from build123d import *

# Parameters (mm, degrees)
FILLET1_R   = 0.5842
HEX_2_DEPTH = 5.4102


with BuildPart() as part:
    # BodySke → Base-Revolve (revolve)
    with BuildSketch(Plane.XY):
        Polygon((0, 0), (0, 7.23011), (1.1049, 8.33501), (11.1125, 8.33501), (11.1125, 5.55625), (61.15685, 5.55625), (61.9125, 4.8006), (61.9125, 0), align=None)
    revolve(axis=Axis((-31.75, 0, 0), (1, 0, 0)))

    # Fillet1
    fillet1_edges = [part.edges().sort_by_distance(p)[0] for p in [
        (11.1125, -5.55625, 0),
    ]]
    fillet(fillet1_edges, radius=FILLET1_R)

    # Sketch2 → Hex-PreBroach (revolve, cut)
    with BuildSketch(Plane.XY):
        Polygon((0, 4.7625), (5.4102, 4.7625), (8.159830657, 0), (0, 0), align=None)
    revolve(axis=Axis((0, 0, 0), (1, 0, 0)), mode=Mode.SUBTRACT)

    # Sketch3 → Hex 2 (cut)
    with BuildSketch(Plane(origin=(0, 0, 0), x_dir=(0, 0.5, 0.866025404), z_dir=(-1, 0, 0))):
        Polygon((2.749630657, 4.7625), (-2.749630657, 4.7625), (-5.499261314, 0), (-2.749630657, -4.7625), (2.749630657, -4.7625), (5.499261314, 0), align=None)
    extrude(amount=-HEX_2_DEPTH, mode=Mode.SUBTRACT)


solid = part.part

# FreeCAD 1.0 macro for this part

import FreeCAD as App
import Part
import Sketcher
Q = App.Units.Quantity


def edges_at(feature, points):
    """Names of the edges that pass closest to the given points."""
    edges = feature.Shape.Edges
    near = lambda p: min(range(len(edges)), key=lambda i: edges[i].distToShape(Part.Vertex(*p))[0])
    return sorted({f"Edge{near(p) + 1}" for p in points})

doc = App.newDocument("Part")
params = doc.addObject("Spreadsheet::Sheet", "Params")
for row, (alias, value) in enumerate([
    ("sketch1_width", "2.4375 in"),
    ("sketch1_width2", "0.394 in"),
    ("sketch1_height", "0.189 in"),
    ("revolution_angle", "360 deg"),
    ("fillet_radius", "0.023 in"),
    ("sketch2_width", "0.213 in"),
    ("sketch2_height", "0.1875 in"),
    ("groove_angle", "360 deg"),
    ("pocket1_length", "0.213 in"),
], start=1):
    params.set(f"A{row}", alias)
    params.set(f"B{row}", "=" + value)
    params.setAlias(f"B{row}", alias)

body = doc.addObject("PartDesign::Body", "Body")

sketch1 = body.newObject("Sketcher::SketchObject", "Sketch")
sketch1.AttachmentSupport = (doc.getObject("XY_Plane"), [""])
sketch1.MapMode = "FlatFace"
sketch1.addGeometry([
    Part.LineSegment(App.Vector(0, 7.2, 0), App.Vector(0, 0, 0)),
    Part.LineSegment(App.Vector(0, 0, 0), App.Vector(61.9, 0, 0)),
    Part.LineSegment(App.Vector(61.9, 0, 0), App.Vector(61.9, 4.8, 0)),
    Part.LineSegment(App.Vector(61.9, 4.8, 0), App.Vector(61.2, 5.6, 0)),
    Part.LineSegment(App.Vector(61.2, 5.6, 0), App.Vector(11.1, 5.6, 0)),
    Part.LineSegment(App.Vector(11.1, 5.6, 0), App.Vector(11.1, 8.3, 0)),
    Part.LineSegment(App.Vector(11.1, 8.3, 0), App.Vector(1.1, 8.3, 0)),
    Part.LineSegment(App.Vector(1.1, 8.3, 0), App.Vector(0, 7.2, 0)),
], False)
sketch1.addConstraint([
    Sketcher.Constraint("Coincident", 0, 2, 1, 1),
    Sketcher.Constraint("Coincident", 1, 2, 2, 1),
    Sketcher.Constraint("Coincident", 2, 2, 3, 1),
    Sketcher.Constraint("Coincident", 3, 2, 4, 1),
    Sketcher.Constraint("Coincident", 4, 2, 5, 1),
    Sketcher.Constraint("Coincident", 5, 2, 6, 1),
    Sketcher.Constraint("Coincident", 6, 2, 7, 1),
    Sketcher.Constraint("Coincident", 7, 2, 0, 1),
    Sketcher.Constraint("Vertical", 0),
    Sketcher.Constraint("Horizontal", 1),
    Sketcher.Constraint("Vertical", 2),
    Sketcher.Constraint("Horizontal", 4),
    Sketcher.Constraint("Vertical", 5),
    Sketcher.Constraint("Horizontal", 6),
    Sketcher.Constraint("Coincident", 0, 2, -1, 1),
    Sketcher.Constraint("Perpendicular", 3, 7),
    Sketcher.Constraint("Angle", 3, Q("135 deg")),
    Sketcher.Constraint("DistanceX", 4, 2, 2, 2, Q("2 in")),
    Sketcher.Constraint("DistanceX", 1, 1, 1, 2, Q("2.4375 in")),
    Sketcher.Constraint("DistanceX", 6, 2, 6, 1, Q("0.394 in")),
    Sketcher.Constraint("DistanceY", 2, 1, 2, 2, Q("0.189 in")),
    Sketcher.Constraint("DistanceY", 5, 1, 5, 2, Q("0.1094 in")),
    Sketcher.Constraint("DistanceY", -1, 1, 3, 2, Q("0.21875 in")),
])
sketch1.setExpression("Constraints[18]", "Params.sketch1_width")
sketch1.setExpression("Constraints[19]", "Params.sketch1_width2")
sketch1.setExpression("Constraints[20]", "Params.sketch1_height")
revolution = body.newObject("PartDesign::Revolution", "Revolution")
revolution.Profile = sketch1
revolution.ReferenceAxis = (sketch1, ["H_Axis"])
revolution.setExpression("Angle", "Params.revolution_angle")
doc.recompute()

fillet = body.newObject("PartDesign::Fillet", "Fillet")
fillet.Base = (revolution, edges_at(revolution, [(11.113, -5.556, 0)]))
fillet.setExpression("Radius", "Params.fillet_radius")

sketch2 = body.newObject("Sketcher::SketchObject", "Sketch001")
sketch2.AttachmentSupport = (doc.getObject("XY_Plane"), [""])
sketch2.MapMode = "FlatFace"
sketch2.addGeometry([
    Part.LineSegment(App.Vector(5.4, 4.8, 0), App.Vector(0, 4.8, 0)),
    Part.LineSegment(App.Vector(0, 4.8, 0), App.Vector(0, 0, 0)),
    Part.LineSegment(App.Vector(0, 0, 0), App.Vector(8.2, 0, 0)),
    Part.LineSegment(App.Vector(8.2, 0, 0), App.Vector(5.4, 4.8, 0)),
], False)
sketch2.addConstraint([
    Sketcher.Constraint("Coincident", 0, 2, 1, 1),
    Sketcher.Constraint("Coincident", 1, 2, 2, 1),
    Sketcher.Constraint("Coincident", 2, 2, 3, 1),
    Sketcher.Constraint("Coincident", 3, 2, 0, 1),
    Sketcher.Constraint("Horizontal", 0),
    Sketcher.Constraint("Vertical", 1),
    Sketcher.Constraint("Horizontal", 2),
    Sketcher.Constraint("Coincident", 1, 2, -1, 1),
    Sketcher.Constraint("Angle", 3, Q("120 deg")),
    Sketcher.Constraint("DistanceX", 0, 2, 0, 1, Q("0.213 in")),
    Sketcher.Constraint("DistanceY", 1, 2, 1, 1, Q("0.1875 in")),
])
sketch2.setExpression("Constraints[9]", "Params.sketch2_width")
sketch2.setExpression("Constraints[10]", "Params.sketch2_height")
groove = body.newObject("PartDesign::Groove", "Groove")
groove.Profile = sketch2
groove.ReferenceAxis = (sketch2, ["H_Axis"])
groove.setExpression("Angle", "Params.groove_angle")

sketch3 = body.newObject("Sketcher::SketchObject", "Sketch002")
sketch3.AttachmentSupport = (doc.getObject("YZ_Plane"), [""])
sketch3.MapMode = "FlatFace"
sketch3.addGeometry([
    Part.LineSegment(App.Vector(5, 0, 0), App.Vector(3, -5, 0)),
    Part.LineSegment(App.Vector(3, -5, 0), App.Vector(-3, -5, 0)),
    Part.LineSegment(App.Vector(-3, -5, 0), App.Vector(-5, 0, 0)),
    Part.LineSegment(App.Vector(-5, 0, 0), App.Vector(-3, 5, 0)),
    Part.LineSegment(App.Vector(-3, 5, 0), App.Vector(3, 5, 0)),
    Part.LineSegment(App.Vector(3, 5, 0), App.Vector(5, 0, 0)),
], False)
sketch3.addConstraint([
    Sketcher.Constraint("Coincident", 0, 2, 1, 1),
    Sketcher.Constraint("Coincident", 1, 2, 2, 1),
    Sketcher.Constraint("Coincident", 2, 2, 3, 1),
    Sketcher.Constraint("Coincident", 3, 2, 4, 1),
    Sketcher.Constraint("Coincident", 4, 2, 5, 1),
    Sketcher.Constraint("Coincident", 5, 2, 0, 1),
    Sketcher.Constraint("Horizontal", 1),
    Sketcher.Constraint("Horizontal", 4),
    Sketcher.Constraint("Symmetric", 0, 2, 3, 2, -1, 1),
    Sketcher.Constraint("Symmetric", 2, 2, 5, 2, -1, 1),
    Sketcher.Constraint("PointOnObject", 2, 2, -1),
    Sketcher.Constraint("Parallel", 2, 5),
    Sketcher.Constraint("Vertical", 1, 2, 3, 2),
    Sketcher.Constraint("Angle", 0, Q("-120 deg")),
    Sketcher.Constraint("DistanceY", 0, 2, -1, 1, Q("0.1875 in")),
    Sketcher.Constraint("DistanceX", 1, 2, 1, 1, 5.499261),
])
pocket1 = body.newObject("PartDesign::Pocket", "Pocket")
pocket1.Profile = sketch3
pocket1.setExpression("Length", "Params.pocket1_length")
pocket1.Reversed = True

doc.recompute()
